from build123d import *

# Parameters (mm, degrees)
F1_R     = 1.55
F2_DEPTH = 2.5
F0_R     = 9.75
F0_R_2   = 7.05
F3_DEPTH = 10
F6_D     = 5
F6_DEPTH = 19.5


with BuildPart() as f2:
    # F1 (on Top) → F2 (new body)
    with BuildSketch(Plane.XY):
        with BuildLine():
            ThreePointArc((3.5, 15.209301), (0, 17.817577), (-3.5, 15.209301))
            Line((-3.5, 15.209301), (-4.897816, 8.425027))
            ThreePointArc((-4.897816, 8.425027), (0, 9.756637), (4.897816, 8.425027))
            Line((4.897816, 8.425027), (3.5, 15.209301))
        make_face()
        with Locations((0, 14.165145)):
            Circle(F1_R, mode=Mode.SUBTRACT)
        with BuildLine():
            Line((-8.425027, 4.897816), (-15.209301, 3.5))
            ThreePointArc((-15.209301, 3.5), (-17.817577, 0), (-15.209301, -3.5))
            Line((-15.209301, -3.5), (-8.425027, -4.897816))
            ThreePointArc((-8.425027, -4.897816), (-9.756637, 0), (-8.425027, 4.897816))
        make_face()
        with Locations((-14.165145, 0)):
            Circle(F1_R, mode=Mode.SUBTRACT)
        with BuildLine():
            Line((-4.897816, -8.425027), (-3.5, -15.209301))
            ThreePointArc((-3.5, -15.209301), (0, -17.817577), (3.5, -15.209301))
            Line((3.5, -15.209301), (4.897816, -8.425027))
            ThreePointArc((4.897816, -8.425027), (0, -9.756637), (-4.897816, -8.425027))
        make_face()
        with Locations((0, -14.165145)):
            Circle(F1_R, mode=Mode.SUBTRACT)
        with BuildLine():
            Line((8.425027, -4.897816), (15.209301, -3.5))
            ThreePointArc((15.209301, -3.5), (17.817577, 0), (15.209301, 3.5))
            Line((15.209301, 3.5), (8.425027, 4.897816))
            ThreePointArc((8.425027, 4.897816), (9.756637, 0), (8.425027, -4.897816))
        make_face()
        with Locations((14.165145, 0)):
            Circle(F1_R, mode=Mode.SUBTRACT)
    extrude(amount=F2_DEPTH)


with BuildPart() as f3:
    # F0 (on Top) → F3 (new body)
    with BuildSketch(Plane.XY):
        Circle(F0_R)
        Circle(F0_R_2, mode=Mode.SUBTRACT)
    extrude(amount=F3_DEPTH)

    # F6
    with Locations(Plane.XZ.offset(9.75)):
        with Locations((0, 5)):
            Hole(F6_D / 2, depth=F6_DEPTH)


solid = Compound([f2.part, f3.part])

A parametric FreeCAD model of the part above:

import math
import FreeCAD as App
import Part
import Sketcher
from FreeCAD import Vector
Q = App.Units.Quantity

doc = App.newDocument("Part")
body = doc.addObject("PartDesign::Body", "Body")
body.AllowCompound = True

# Sketch on XY plane
sketch1 = body.newObject("Sketcher::SketchObject", "Sketch")
sketch1.AttachmentSupport = (doc.getObject("XY_Plane"), [""])
sketch1.MapMode = "FlatFace"
sketch1.addGeometry([
    Part.ArcOfCircle(Part.Circle(Vector(0, 14.165145, 0), Vector(0, 0, 1), 3.652432), math.radians(16.611442), math.radians(163.388558)),  # 0
    Part.LineSegment(Vector(-3.5, 15.209301, 0), Vector(-4.897816, 8.425027, 0)),  # 1
    Part.ArcOfCircle(Part.Circle(Vector(0, 0.083464, 0), Vector(0, 0, 1), 9.673173), math.radians(59.58033), math.radians(120.41967)),  # 2
    Part.LineSegment(Vector(4.897816, 8.425027, 0), Vector(3.5, 15.209301, 0)),  # 3
    Part.Circle(Vector(0, 14.165145, 0), Vector(0, 0, 1), 1.55),  # 4
    Part.LineSegment(Vector(-8.425027, 4.897816, 0), Vector(-15.209301, 3.5, 0)),  # 5
    Part.ArcOfCircle(Part.Circle(Vector(-14.165145, 0, 0), Vector(0, 0, 1), 3.652432), math.radians(106.611442), math.radians(253.388558)),  # 6
    Part.LineSegment(Vector(-15.209301, -3.5, 0), Vector(-8.425027, -4.897816, 0)),  # 7
    Part.ArcOfCircle(Part.Circle(Vector(-0.083464, 0, 0), Vector(0, 0, 1), 9.673173), math.radians(149.58033), math.radians(210.41967)),  # 8
    Part.Circle(Vector(-14.165145, 0, 0), Vector(0, 0, 1), 1.55),  # 9
    Part.LineSegment(Vector(-4.897816, -8.425027, 0), Vector(-3.5, -15.209301, 0)),  # 10
    Part.ArcOfCircle(Part.Circle(Vector(0, -14.165145, 0), Vector(0, 0, 1), 3.652432), math.radians(-163.388558), math.radians(-16.611442)),  # 11
    Part.LineSegment(Vector(3.5, -15.209301, 0), Vector(4.897816, -8.425027, 0)),  # 12
    Part.ArcOfCircle(Part.Circle(Vector(0, -0.083464, 0), Vector(0, 0, 1), 9.673173), math.radians(-120.41967), math.radians(-59.58033)),  # 13
    Part.Circle(Vector(0, -14.165145, 0), Vector(0, 0, 1), 1.55),  # 14
    Part.LineSegment(Vector(8.425027, -4.897816, 0), Vector(15.209301, -3.5, 0)),  # 15
    Part.ArcOfCircle(Part.Circle(Vector(14.165145, 0, 0), Vector(0, 0, 1), 3.652432), math.radians(-73.388558), math.radians(73.388558)),  # 16
    Part.LineSegment(Vector(15.209301, 3.5, 0), Vector(8.425027, 4.897816, 0)),  # 17
    Part.ArcOfCircle(Part.Circle(Vector(0.083464, 0, 0), Vector(0, 0, 1), 9.673173), math.radians(-30.41967), math.radians(30.41967)),  # 18
    Part.Circle(Vector(14.165145, 0, 0), Vector(0, 0, 1), 1.55),  # 19
], False)
sketch1.addConstraint([
    Sketcher.Constraint("Coincident", 0, 2, 1, 1),
    Sketcher.Constraint("Coincident", 1, 2, 2, 2),
    Sketcher.Constraint("Coincident", 2, 1, 3, 1),
    Sketcher.Constraint("Coincident", 3, 2, 0, 1),
    Sketcher.Constraint("Coincident", 5, 2, 6, 1),
    Sketcher.Constraint("Coincident", 6, 2, 7, 1),
    Sketcher.Constraint("Coincident", 7, 2, 8, 2),
    Sketcher.Constraint("Coincident", 8, 1, 5, 1),
    Sketcher.Constraint("Coincident", 10, 2, 11, 1),
    Sketcher.Constraint("Coincident", 11, 2, 12, 1),
    Sketcher.Constraint("Coincident", 12, 2, 13, 2),
    Sketcher.Constraint("Coincident", 13, 1, 10, 1),
    Sketcher.Constraint("Coincident", 15, 2, 16, 1),
    Sketcher.Constraint("Coincident", 16, 2, 17, 1),
    Sketcher.Constraint("Coincident", 17, 2, 18, 2),
    Sketcher.Constraint("Coincident", 18, 1, 15, 1),
    Sketcher.Constraint("Coincident", 4, 3, 0, 3),
    Sketcher.Constraint("Coincident", 9, 3, 6, 3),
    Sketcher.Constraint("Coincident", 14, 3, 11, 3),
    Sketcher.Constraint("Coincident", 19, 3, 16, 3),
    Sketcher.Constraint("Equal", 0, 6),
    Sketcher.Constraint("Equal", 2, 8),
    Sketcher.Constraint("Equal", 4, 9),
    Sketcher.Constraint("Equal", 6, 11),
    Sketcher.Constraint("Equal", 8, 13),
    Sketcher.Constraint("Equal", 9, 14),
    Sketcher.Constraint("Equal", 11, 16),
    Sketcher.Constraint("Equal", 13, 18),
    Sketcher.Constraint("Equal", 14, 19),
    Sketcher.Constraint("Symmetric", 0, 3, 11, 3, -1, 1),
    Sketcher.Constraint("Symmetric", 2, 3, 13, 3, -1, 1),
    Sketcher.Constraint("Symmetric", 6, 3, 16, 3, -1, 1),
    Sketcher.Constraint("Symmetric", 8, 3, 18, 3, -1, 1),
    Sketcher.Constraint("Symmetric", 1, 2, 2, 1, -2),
    Sketcher.Constraint("Symmetric", 0, 2, 3, 2, -2),
    Sketcher.Constraint("Symmetric", 6, 2, 15, 2, -2),
    Sketcher.Constraint("Symmetric", 8, 1, 17, 2, -2),
    Sketcher.Constraint("Perpendicular", 3, 5),
    Sketcher.Constraint("Perpendicular", 1, 7),
    Sketcher.Constraint("Perpendicular", 5, 10),
    Sketcher.Constraint("Perpendicular", 7, 12),
    Sketcher.Constraint("Perpendicular", 10, 15),
    Sketcher.Constraint("Perpendicular", 12, 17),
    Sketcher.Constraint("Horizontal", 10, 2, 11, 2),
    Sketcher.Constraint("Vertical", 5, 2, 6, 2),
    Sketcher.Constraint("Vertical", 0, 2, 10, 2),
    Sketcher.Constraint("Equal", 3, 5),
    Sketcher.Constraint("Diameter", 4, Q("3.1 mm")),
    Sketcher.Constraint("DistanceX", 0, 2, 3, 2, Q("7 mm")),
    Sketcher.Constraint("DistanceY", 6, 2, 5, 2, Q("7 mm")),
    Sketcher.Constraint("Radius", 0, Q("3.652432 mm")),
    Sketcher.Constraint("Radius", 2, Q("9.673173 mm")),
    Sketcher.Constraint("DistanceY", -1, 1, 0, 2, Q("15.209301 mm")),
    Sketcher.Constraint("DistanceX", 5, 2, -1, 1, Q("15.209301 mm")),
    Sketcher.Constraint("Distance", 1, Q("6.926779 mm")),
    Sketcher.Constraint("DistanceY", 2, 3, 0, 3, Q("14.08168 mm")),
])
pad1 = body.newObject("PartDesign::Pad", "Pad")
pad1.Profile = sketch1
pad1.Length = 2.5
body2 = doc.addObject("PartDesign::Body", "Body001")

# Sketch on XY plane
sketch2 = body2.newObject("Sketcher::SketchObject", "Sketch001")
sketch2.AttachmentSupport = (doc.getObject("XY_Plane001"), [""])
sketch2.MapMode = "FlatFace"
sketch2.addGeometry([
    Part.Circle(Vector(0, 0, 0), Vector(0, 0, 1), 9.75),
    Part.Circle(Vector(0, 0, 0), Vector(0, 0, 1), 7.05),
], False)
sketch2.addConstraint([
    Sketcher.Constraint("Coincident", 0, 3, -1, 1),
    Sketcher.Constraint("Coincident", 1, 3, -1, 1),
    Sketcher.Constraint("Diameter", 0, Q("19.5 mm")),
    Sketcher.Constraint("Diameter", 1, Q("14.1 mm")),
])
pad2 = body2.newObject("PartDesign::Pad", "Pad001")
pad2.Profile = sketch2
pad2.Length = 10

# Sketch on XZ plane
sketch3 = body2.newObject("Sketcher::SketchObject", "Sketch002")
sketch3.AttachmentSupport = (doc.getObject("XZ_Plane001"), [""])
sketch3.MapMode = "FlatFace"
sketch3.AttachmentOffset = App.Placement(Vector(0, 0, 9.75), App.Rotation())
sketch3.addGeometry(Part.Circle(Vector(0, 5, 0), Vector(0, 0, 1), 2.5), False)
sketch3.addConstraint([
    Sketcher.Constraint("PointOnObject", 0, 3, -2),
    Sketcher.Constraint("Diameter", 0, Q("5 mm")),
    Sketcher.Constraint("DistanceY", -1, 1, 0, 3, Q("5 mm")),
])
doc.recompute()
hole = body2.newObject("PartDesign::Hole", "Hole")
hole.Profile = sketch3
hole.ThreadType = "None"
hole.Diameter = 5
hole.DepthType = "Dimension"
hole.Depth = 19.5
hole.DrillPoint = "Flat"

doc.recompute()
